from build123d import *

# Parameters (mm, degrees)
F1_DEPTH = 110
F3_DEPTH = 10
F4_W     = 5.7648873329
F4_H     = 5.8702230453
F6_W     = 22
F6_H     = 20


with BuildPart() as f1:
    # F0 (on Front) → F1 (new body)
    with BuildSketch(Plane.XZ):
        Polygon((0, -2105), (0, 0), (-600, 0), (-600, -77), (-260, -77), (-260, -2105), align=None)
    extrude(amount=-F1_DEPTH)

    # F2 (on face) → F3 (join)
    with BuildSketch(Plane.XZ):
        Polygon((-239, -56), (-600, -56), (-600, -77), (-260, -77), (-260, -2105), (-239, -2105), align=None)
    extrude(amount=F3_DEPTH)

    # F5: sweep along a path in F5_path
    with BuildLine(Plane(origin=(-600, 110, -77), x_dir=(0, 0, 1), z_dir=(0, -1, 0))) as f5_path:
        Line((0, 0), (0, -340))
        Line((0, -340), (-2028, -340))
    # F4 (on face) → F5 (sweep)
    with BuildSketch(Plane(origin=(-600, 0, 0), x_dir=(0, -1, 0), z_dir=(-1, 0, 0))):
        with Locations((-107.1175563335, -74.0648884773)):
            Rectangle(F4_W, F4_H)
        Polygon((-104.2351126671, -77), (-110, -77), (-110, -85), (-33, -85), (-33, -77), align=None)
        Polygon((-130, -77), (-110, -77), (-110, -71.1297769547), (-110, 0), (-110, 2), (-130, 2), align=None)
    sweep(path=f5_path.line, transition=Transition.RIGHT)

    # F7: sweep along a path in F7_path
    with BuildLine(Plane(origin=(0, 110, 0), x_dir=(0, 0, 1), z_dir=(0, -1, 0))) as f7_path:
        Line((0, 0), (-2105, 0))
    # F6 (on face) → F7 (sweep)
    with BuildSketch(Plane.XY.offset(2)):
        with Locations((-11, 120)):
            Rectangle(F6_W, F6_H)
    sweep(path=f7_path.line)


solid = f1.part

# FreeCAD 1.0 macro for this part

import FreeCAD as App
import Part
import Sketcher

V = App.Vector
Q = App.Units.Quantity


def add_polygon(sketch, points):
    """Adds a closed chain of lines whose ends are joined by coincident constraints."""
    first, n = sketch.GeometryCount, len(points)
    for a, b in zip(points, points[1:] + points[:1]):
        sketch.addGeometry(Part.LineSegment(App.Vector(*a, 0), App.Vector(*b, 0)), False)
    for i in range(n):
        sketch.addConstraint(Sketcher.Constraint("Coincident", first + i, 2, first + (i + 1) % n, 1))

doc = App.newDocument("Part")
body = doc.addObject("PartDesign::Body", "Body")

# Sketch on XZ plane
sketch1 = doc.addObject("Sketcher::SketchObject", "Sketch")
body.addObject(sketch1)
sketch1.AttachmentSupport = (doc.XZ_Plane, [""])
sketch1.MapMode = "FlatFace"
add_polygon(sketch1, [(0, -2105), (0, 0), (-600, 0), (-600, -77), (-260, -77), (-260, -2105)])  # lines 0-5
sketch1.addConstraint([
    Sketcher.Constraint("Vertical", 0),
    Sketcher.Constraint("Horizontal", 1),
    Sketcher.Constraint("Vertical", 2),
    Sketcher.Constraint("Horizontal", 3),
    Sketcher.Constraint("Vertical", 4),
    Sketcher.Constraint("Horizontal", 5),
    Sketcher.Constraint("Coincident", 0, 2, -1, 1),
    Sketcher.Constraint("DistanceX", 1, 2, 1, 1, Q("600 mm")),
    Sketcher.Constraint("DistanceX", 3, 1, 3, 2, Q("340 mm")),
    Sketcher.Constraint("DistanceY", 0, 1, 0, 2, Q("2105 mm")),
    Sketcher.Constraint("DistanceY", 2, 2, 2, 1, Q("77 mm")),
])
pad1 = doc.addObject("PartDesign::Pad", "Pad")
body.addObject(pad1)
pad1.Profile = sketch1
pad1.Length = 110
pad1.Reversed = True

# Sketch on XZ plane
sketch2 = doc.addObject("Sketcher::SketchObject", "Sketch001")
body.addObject(sketch2)
sketch2.AttachmentSupport = (doc.XZ_Plane, [""])
sketch2.MapMode = "FlatFace"
add_polygon(sketch2, [(-239, -56), (-600, -56), (-600, -77), (-260, -77), (-260, -2105), (-239, -2105)])  # lines 0-5
sketch2.addConstraint([
    Sketcher.Constraint("Horizontal", 0),
    Sketcher.Constraint("Vertical", 1),
    Sketcher.Constraint("Horizontal", 2),
    Sketcher.Constraint("Vertical", 3),
    Sketcher.Constraint("Horizontal", 4),
    Sketcher.Constraint("Vertical", 5),
    Sketcher.Constraint("Equal", 4, 1),
    Sketcher.Constraint("DistanceX", 0, 2, 0, 1, Q("361 mm")),
    Sketcher.Constraint("DistanceX", 2, 1, 2, 2, Q("340 mm")),
    Sketcher.Constraint("DistanceY", 3, 2, 3, 1, Q("2028 mm")),
    Sketcher.Constraint("DistanceX", 0, 2, -1, 1, Q("600 mm")),
    Sketcher.Constraint("DistanceY", 0, 2, -1, 1, Q("56 mm")),
])
pad2 = doc.addObject("PartDesign::Pad", "Pad001")
body.addObject(pad2)
pad2.Profile = sketch2
pad2.Length = 10

# Sketch on YZ plane
sketch3 = doc.addObject("Sketcher::SketchObject", "Sketch002")
body.addObject(sketch3)
sketch3.AttachmentSupport = (doc.YZ_Plane, [""])
sketch3.MapMode = "FlatFace"
sketch3.AttachmentOffset = App.Placement(V(0, 0, -600), App.Rotation())
add_polygon(sketch3, [(110, -77), (110, -85), (33, -85), (33, -77), (104, -77), (104, -71), (110, -71), (110, 2), (130, 2), (130, -77)])  # lines 0-9
sketch3.addConstraint([
    Sketcher.Constraint("Vertical", 0),
    Sketcher.Constraint("Horizontal", 1),
    Sketcher.Constraint("Vertical", 2),
    Sketcher.Constraint("Horizontal", 3),
    Sketcher.Constraint("Vertical", 4),
    Sketcher.Constraint("Horizontal", 5),
    Sketcher.Constraint("Vertical", 6),
    Sketcher.Constraint("Horizontal", 7),
    Sketcher.Constraint("Vertical", 8),
    Sketcher.Constraint("Horizontal", 9),
    Sketcher.Constraint("Horizontal", 3, 2, 8, 2),
    Sketcher.Constraint("Vertical", 0, 2, 5, 2),
    Sketcher.Constraint("DistanceX", 1, 2, 1, 1, Q("77 mm")),
    Sketcher.Constraint("DistanceX", 7, 1, 7, 2, Q("20 mm")),
    Sketcher.Constraint("DistanceY", 0, 2, 0, 1, Q("8 mm")),
    Sketcher.Constraint("DistanceY", 8, 2, 8, 1, Q("79 mm")),
    Sketcher.Constraint("DistanceX", -1, 1, 0, 2, Q("110 mm")),
    Sketcher.Constraint("DistanceY", 0, 2, -1, 1, Q("85 mm")),
    Sketcher.Constraint("DistanceX", 3, 1, 3, 2, Q("71.235113 mm")),
    Sketcher.Constraint("DistanceY", 4, 1, 4, 2, Q("5.870223 mm")),
])

# Sketch on XZ plane
sketch4 = doc.addObject("Sketcher::SketchObject", "Sketch003")
body.addObject(sketch4)
sketch4.AttachmentSupport = (doc.XZ_Plane, [""])
sketch4.MapMode = "FlatFace"
sketch4.AttachmentOffset = App.Placement(V(0, 0, -110), App.Rotation())
sketch4.addGeometry([
    Part.LineSegment(V(-600, -77, 0), V(-260, -77, 0)),
    Part.LineSegment(V(-260, -77, 0), V(-260, -2105, 0)),
], False)
sketch4.addConstraint([
    Sketcher.Constraint("Coincident", 0, 2, 1, 1),
    Sketcher.Constraint("Horizontal", 0),
    Sketcher.Constraint("Vertical", 1),
    Sketcher.Constraint("DistanceX", 0, 1, 0, 2, Q("340 mm")),
    Sketcher.Constraint("DistanceY", 1, 2, 1, 1, Q("2028 mm")),
    Sketcher.Constraint("DistanceX", 0, 1, -1, 1, Q("600 mm")),
    Sketcher.Constraint("DistanceY", 0, 1, -1, 1, Q("77 mm")),
])
doc.recompute()

additivepipe = doc.addObject("PartDesign::AdditivePipe", "AdditivePipe")
body.addObject(additivepipe)
additivepipe.Profile = sketch3
additivepipe.Spine = (sketch4, ["Edge1", "Edge2"])
additivepipe.Transition = "Right corner"

# Sketch on XY plane
sketch5 = doc.addObject("Sketcher::SketchObject", "Sketch004")
body.addObject(sketch5)
sketch5.AttachmentSupport = (doc.XY_Plane, [""])
sketch5.MapMode = "FlatFace"
sketch5.AttachmentOffset = App.Placement(V(0, 0, 2), App.Rotation())
add_polygon(sketch5, [(-22, 130), (-22, 110), (0, 110), (0, 130)])  # lines 0-3
sketch5.addConstraint([
    Sketcher.Constraint("Vertical", 0),
    Sketcher.Constraint("Horizontal", 1),
    Sketcher.Constraint("Vertical", 2),
    Sketcher.Constraint("Horizontal", 3),
    Sketcher.Constraint("PointOnObject", 1, 2, -2),
    Sketcher.Constraint("DistanceX", 1, 1, 1, 2, Q("22 mm")),
    Sketcher.Constraint("DistanceY", 0, 2, 0, 1, Q("20 mm")),
    Sketcher.Constraint("DistanceY", -1, 1, 0, 2, Q("110 mm")),
])

# Sketch on XZ plane
sketch6 = doc.addObject("Sketcher::SketchObject", "Sketch005")
body.addObject(sketch6)
sketch6.AttachmentSupport = (doc.XZ_Plane, [""])
sketch6.MapMode = "FlatFace"
sketch6.AttachmentOffset = App.Placement(V(0, 0, -110), App.Rotation())
sketch6.addGeometry(Part.LineSegment(V(0, 0, 0), V(0, -2105, 0)), False)
sketch6.addConstraint([
    Sketcher.Constraint("Vertical", 0),
    Sketcher.Constraint("Coincident", 0, 1, -1, 1),
    Sketcher.Constraint("DistanceY", 0, 2, 0, 1, Q("2105 mm")),
])
doc.recompute()

additivepipe2 = doc.addObject("PartDesign::AdditivePipe", "AdditivePipe001")
body.addObject(additivepipe2)
additivepipe2.Profile = sketch5
additivepipe2.Spine = (sketch6, ["Edge1"])

doc.recompute()
